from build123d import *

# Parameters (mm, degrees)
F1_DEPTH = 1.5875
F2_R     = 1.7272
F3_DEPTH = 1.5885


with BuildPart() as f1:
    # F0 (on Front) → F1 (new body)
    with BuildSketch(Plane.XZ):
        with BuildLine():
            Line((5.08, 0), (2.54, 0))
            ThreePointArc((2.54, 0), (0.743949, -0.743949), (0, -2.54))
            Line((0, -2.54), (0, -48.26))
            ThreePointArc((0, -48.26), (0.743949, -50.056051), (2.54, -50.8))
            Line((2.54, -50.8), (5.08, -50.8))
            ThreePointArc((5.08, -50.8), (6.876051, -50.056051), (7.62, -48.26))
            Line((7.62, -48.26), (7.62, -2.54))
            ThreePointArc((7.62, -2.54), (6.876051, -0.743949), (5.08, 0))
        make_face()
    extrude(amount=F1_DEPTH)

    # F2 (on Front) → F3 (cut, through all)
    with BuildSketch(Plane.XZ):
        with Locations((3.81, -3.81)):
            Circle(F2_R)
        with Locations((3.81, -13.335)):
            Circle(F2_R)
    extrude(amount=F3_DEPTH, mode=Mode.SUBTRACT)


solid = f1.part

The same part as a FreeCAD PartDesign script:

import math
import FreeCAD as App
import Part
import Sketcher
Q = App.Units.Quantity

doc = App.newDocument("Part")
params = doc.addObject("Spreadsheet::Sheet", "Params")
for row, (alias, value) in enumerate([
    ("sketch1_radius", "0.1 in"),
    ("sketch1_width", "0.1 in"),
    ("sketch1_height", "1.8 in"),
    ("pad1_length", "0.0625 in"),
    ("sketch2_diameter", "0.136 in"),
], start=1):
    params.set(f"A{row}", alias)
    params.set(f"B{row}", "=" + value)
    params.setAlias(f"B{row}", alias)

body = doc.addObject("PartDesign::Body", "Body")

# Sketch on XZ plane
sketch1 = body.newObject("Sketcher::SketchObject", "Sketch")
sketch1.AttachmentSupport = (doc.getObject("XZ_Plane"), [""])
sketch1.MapMode = "FlatFace"
sketch1.addGeometry([
    Part.LineSegment(App.Vector(5.08, 0, 0), App.Vector(2.54, 0, 0)),  # 0
    Part.ArcOfCircle(Part.Circle(App.Vector(2.540001, -2.540001, 0), App.Vector(0, 0, 1), 2.540001), math.radians(90.000017), math.radians(179.999983)),  # 1
    Part.LineSegment(App.Vector(0, -2.54, 0), App.Vector(0, -48.26, 0)),  # 2
    Part.ArcOfCircle(Part.Circle(App.Vector(2.540001, -48.259999, 0), App.Vector(0, 0, 1), 2.540001), math.radians(-179.999983), math.radians(-90.000017)),  # 3
    Part.LineSegment(App.Vector(2.54, -50.8, 0), App.Vector(5.08, -50.8, 0)),  # 4
    Part.ArcOfCircle(Part.Circle(App.Vector(5.079999, -48.259999, 0), App.Vector(0, 0, 1), 2.540001), math.radians(-89.999983), math.radians(-0.000017)),  # 5
    Part.LineSegment(App.Vector(7.62, -48.26, 0), App.Vector(7.62, -2.54, 0)),  # 6
    Part.ArcOfCircle(Part.Circle(App.Vector(5.079999, -2.540001, 0), App.Vector(0, 0, 1), 2.540001), math.radians(0.000017), math.radians(89.999983)),  # 7
], False)
sketch1.addConstraint([
    Sketcher.Constraint("Tangent", 0, 2, 1, 1),
    Sketcher.Constraint("Tangent", 1, 2, 2, 1),
    Sketcher.Constraint("Tangent", 2, 2, 3, 1),
    Sketcher.Constraint("Tangent", 3, 2, 4, 1),
    Sketcher.Constraint("Tangent", 4, 2, 5, 1),
    Sketcher.Constraint("Tangent", 5, 2, 6, 1),
    Sketcher.Constraint("Tangent", 6, 2, 7, 1),
    Sketcher.Constraint("Tangent", 7, 2, 0, 1),
    Sketcher.Constraint("Horizontal", 0),
    Sketcher.Constraint("Vertical", 2),
    Sketcher.Constraint("Horizontal", 4),
    Sketcher.Constraint("Vertical", 6),
    Sketcher.Constraint("Equal", 1, 3),
    Sketcher.Constraint("Equal", 3, 5),
    Sketcher.Constraint("Equal", 5, 7),
    Sketcher.Constraint("PointOnObject", 0, 2, -1),
    Sketcher.Constraint("PointOnObject", 1, 2, -2),
    Sketcher.Constraint("Radius", 1, Q("0.1 in")),
    Sketcher.Constraint("DistanceX", 0, 2, 0, 1, Q("0.1 in")),
    Sketcher.Constraint("DistanceY", 2, 2, 2, 1, Q("1.8 in")),
])
sketch1.setExpression("Constraints[17]", "Params.sketch1_radius")
sketch1.setExpression("Constraints[18]", "Params.sketch1_width")
sketch1.setExpression("Constraints[19]", "Params.sketch1_height")
pad1 = body.newObject("PartDesign::Pad", "Pad")
pad1.Profile = sketch1
pad1.setExpression("Length", "Params.pad1_length")

# Sketch on XZ plane
sketch2 = body.newObject("Sketcher::SketchObject", "Sketch001")
sketch2.AttachmentSupport = (doc.getObject("XZ_Plane"), [""])
sketch2.MapMode = "FlatFace"
sketch2.addGeometry([
    Part.Circle(App.Vector(3.81, -3.81, 0), App.Vector(0, 0, 1), 1.7272),
    Part.Circle(App.Vector(3.81, -13.335, 0), App.Vector(0, 0, 1), 1.7272),
], False)
sketch2.addConstraint([
    Sketcher.Constraint("Equal", 0, 1),
    Sketcher.Constraint("Vertical", 0, 3, 1, 3),
    Sketcher.Constraint("Diameter", 0, Q("0.136 in")),
    Sketcher.Constraint("DistanceX", -1, 1, 0, 3, Q("0.15 in")),
    Sketcher.Constraint("DistanceY", 0, 3, -1, 1, Q("0.15 in")),
    Sketcher.Constraint("DistanceY", 1, 3, -1, 1, Q("0.525 in")),
])
sketch2.setExpression("Constraints[2]", "Params.sketch2_diameter")
pocket1 = body.newObject("PartDesign::Pocket", "Pocket")
pocket1.Profile = sketch2
pocket1.Type = "ThroughAll"
pocket1.Reversed = True

doc.recompute()
